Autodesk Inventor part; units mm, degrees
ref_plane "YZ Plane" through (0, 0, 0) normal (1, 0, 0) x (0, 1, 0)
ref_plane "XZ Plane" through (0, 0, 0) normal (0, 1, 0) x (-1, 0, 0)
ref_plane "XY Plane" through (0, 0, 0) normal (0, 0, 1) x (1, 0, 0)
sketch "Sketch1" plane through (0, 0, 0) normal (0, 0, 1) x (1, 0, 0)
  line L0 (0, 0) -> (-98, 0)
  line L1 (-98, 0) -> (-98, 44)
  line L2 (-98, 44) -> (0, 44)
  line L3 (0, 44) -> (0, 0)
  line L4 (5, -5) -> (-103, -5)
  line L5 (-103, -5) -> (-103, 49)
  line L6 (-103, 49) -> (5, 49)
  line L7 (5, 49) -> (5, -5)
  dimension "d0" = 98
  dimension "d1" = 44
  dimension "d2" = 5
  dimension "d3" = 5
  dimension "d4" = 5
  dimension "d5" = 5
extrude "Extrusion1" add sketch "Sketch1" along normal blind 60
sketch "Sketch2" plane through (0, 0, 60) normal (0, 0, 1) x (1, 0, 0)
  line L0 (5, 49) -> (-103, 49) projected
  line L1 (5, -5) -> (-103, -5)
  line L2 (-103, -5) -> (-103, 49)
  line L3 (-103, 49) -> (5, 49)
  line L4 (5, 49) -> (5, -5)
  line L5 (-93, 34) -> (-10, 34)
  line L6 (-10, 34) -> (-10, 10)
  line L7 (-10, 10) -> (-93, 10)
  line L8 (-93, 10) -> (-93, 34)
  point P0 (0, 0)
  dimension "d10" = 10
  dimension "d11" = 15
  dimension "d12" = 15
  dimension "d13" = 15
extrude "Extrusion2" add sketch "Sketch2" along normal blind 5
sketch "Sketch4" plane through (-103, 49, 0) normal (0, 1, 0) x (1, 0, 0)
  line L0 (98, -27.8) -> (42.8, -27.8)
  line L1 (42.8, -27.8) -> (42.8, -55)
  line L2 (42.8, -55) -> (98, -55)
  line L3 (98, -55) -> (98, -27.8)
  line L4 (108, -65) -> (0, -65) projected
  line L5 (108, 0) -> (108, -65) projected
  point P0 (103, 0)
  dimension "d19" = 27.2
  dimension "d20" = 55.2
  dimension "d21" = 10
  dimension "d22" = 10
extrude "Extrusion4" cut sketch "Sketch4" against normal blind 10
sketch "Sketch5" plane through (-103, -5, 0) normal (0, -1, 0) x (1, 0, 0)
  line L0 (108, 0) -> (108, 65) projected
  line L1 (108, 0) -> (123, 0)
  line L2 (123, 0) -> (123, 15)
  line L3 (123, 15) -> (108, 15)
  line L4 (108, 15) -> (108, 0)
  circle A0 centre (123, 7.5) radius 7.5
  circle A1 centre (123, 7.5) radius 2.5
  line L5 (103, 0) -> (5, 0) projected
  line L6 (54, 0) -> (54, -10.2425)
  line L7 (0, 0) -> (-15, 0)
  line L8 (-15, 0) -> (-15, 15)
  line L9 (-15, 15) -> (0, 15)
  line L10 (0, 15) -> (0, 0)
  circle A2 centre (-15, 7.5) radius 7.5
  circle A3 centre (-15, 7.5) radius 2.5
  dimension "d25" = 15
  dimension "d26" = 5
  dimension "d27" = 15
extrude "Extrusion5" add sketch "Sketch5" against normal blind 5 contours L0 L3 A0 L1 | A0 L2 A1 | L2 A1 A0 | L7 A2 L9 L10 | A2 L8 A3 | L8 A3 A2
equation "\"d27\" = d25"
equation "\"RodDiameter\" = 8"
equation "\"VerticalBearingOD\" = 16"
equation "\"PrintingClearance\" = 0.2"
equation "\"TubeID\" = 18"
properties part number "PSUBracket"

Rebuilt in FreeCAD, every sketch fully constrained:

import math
import FreeCAD as App
import Part
import Sketcher

V = App.Vector
Q = App.Units.Quantity


def add_polygon(sketch, points):
    """Adds a closed chain of lines whose ends are joined by coincident constraints."""
    first, n = sketch.GeometryCount, len(points)
    for a, b in zip(points, points[1:] + points[:1]):
        sketch.addGeometry(Part.LineSegment(App.Vector(*a, 0), App.Vector(*b, 0)), False)
    for i in range(n):
        sketch.addConstraint(Sketcher.Constraint("Coincident", first + i, 2, first + (i + 1) % n, 1))

doc = App.newDocument("Part")
body = doc.addObject("PartDesign::Body", "Body")

sketch1 = body.newObject("Sketcher::SketchObject", "Sketch")
sketch1.AttachmentSupport = (doc.getObject("XY_Plane"), [""])
sketch1.MapMode = "FlatFace"
add_polygon(sketch1, [(-103, -5), (5, -5), (5, 49), (-103, 49)])
add_polygon(sketch1, [(0, 44), (0, 0), (-98, 0), (-98, 44)])
sketch1.addConstraint([
    Sketcher.Constraint("Horizontal", 0),
    Sketcher.Constraint("Vertical", 1),
    Sketcher.Constraint("Horizontal", 2),
    Sketcher.Constraint("Vertical", 3),
    Sketcher.Constraint("Vertical", 4),
    Sketcher.Constraint("Horizontal", 5),
    Sketcher.Constraint("Vertical", 6),
    Sketcher.Constraint("Horizontal", 7),
    Sketcher.Constraint("Coincident", 4, 2, -1, 1),
    Sketcher.Constraint("DistanceX", 5, 2, 5, 1, Q("98 mm")),
    Sketcher.Constraint("DistanceY", 4, 2, 4, 1, Q("44 mm")),
    Sketcher.Constraint("DistanceX", -1, 1, 0, 2, Q("5 mm")),
    Sketcher.Constraint("DistanceY", 0, 2, -1, 1, Q("5 mm")),
    Sketcher.Constraint("DistanceX", 3, 2, 5, 2, Q("5 mm")),
    Sketcher.Constraint("DistanceY", 6, 2, 2, 2, Q("5 mm")),
])
pad1 = body.newObject("PartDesign::Pad", "Pad")
pad1.Profile = sketch1
pad1.Length = 60

sketch2 = body.newObject("Sketcher::SketchObject", "Sketch001")
sketch2.AttachmentSupport = (doc.getObject("XY_Plane"), [""])
sketch2.MapMode = "FlatFace"
sketch2.AttachmentOffset = App.Placement(V(0, 0, 60), App.Rotation())
add_polygon(sketch2, [(5, -5), (5, 49), (-103, 49), (-103, -5)])
add_polygon(sketch2, [(-93, 10), (-93, 34), (-10, 34), (-10, 10)])
sketch2.addConstraint([
    Sketcher.Constraint("Vertical", 0),
    Sketcher.Constraint("Horizontal", 1),
    Sketcher.Constraint("Vertical", 2),
    Sketcher.Constraint("Horizontal", 3),
    Sketcher.Constraint("Vertical", 4),
    Sketcher.Constraint("Horizontal", 5),
    Sketcher.Constraint("Vertical", 6),
    Sketcher.Constraint("Horizontal", 7),
    Sketcher.Constraint("DistanceX", 5, 2, -1, 1, Q("10 mm")),
    Sketcher.Constraint("DistanceY", -1, 1, 6, 2, Q("10 mm")),
    Sketcher.Constraint("DistanceX", 1, 2, 4, 2, Q("10 mm")),
    Sketcher.Constraint("DistanceY", 4, 2, 1, 2, Q("15 mm")),
    Sketcher.Constraint("DistanceX", 5, 2, 0, 2, Q("15 mm")),
    Sketcher.Constraint("DistanceY", 3, 2, 6, 2, Q("15 mm")),
    Sketcher.Constraint("DistanceX", 1, 2, 1, 1, Q("108 mm")),
    Sketcher.Constraint("DistanceY", 0, 1, 0, 2, Q("54 mm")),
])
pad2 = body.newObject("PartDesign::Pad", "Pad001")
pad2.Profile = sketch2
pad2.Length = 5

sketch3 = body.newObject("Sketcher::SketchObject", "Sketch002")
sketch3.AttachmentSupport = (doc.getObject("XZ_Plane"), [""])
sketch3.MapMode = "FlatFace"
sketch3.AttachmentOffset = App.Placement(V(0, 0, -49), App.Rotation())
add_polygon(sketch3, [(-5, 55), (-5, 27.8), (-60.2, 27.8), (-60.2, 55)])
sketch3.addConstraint([
    Sketcher.Constraint("Vertical", 0),
    Sketcher.Constraint("Horizontal", 1),
    Sketcher.Constraint("Vertical", 2),
    Sketcher.Constraint("Horizontal", 3),
    Sketcher.Constraint("DistanceX", 1, 2, 1, 1, Q("55.2 mm")),
    Sketcher.Constraint("DistanceY", 0, 2, 0, 1, Q("27.2 mm")),
    Sketcher.Constraint("DistanceX", 0, 2, -1, 1, Q("5 mm")),
    Sketcher.Constraint("DistanceY", -1, 1, 2, 2, Q("55 mm")),
])
pocket1 = body.newObject("PartDesign::Pocket", "Pocket")
pocket1.Profile = sketch3
pocket1.Length = 10
pocket1.Reversed = True

sketch4 = body.newObject("Sketcher::SketchObject", "Sketch003")
sketch4.AttachmentSupport = (doc.getObject("XZ_Plane"), [""])
sketch4.MapMode = "FlatFace"
sketch4.AttachmentOffset = App.Placement(V(0, 0, 5), App.Rotation())
sketch4.addGeometry([
    Part.LineSegment(V(5, 15, 0), V(5, 0, 0)),
    Part.LineSegment(V(5, 0, 0), V(20, 0, 0)),
    Part.ArcOfCircle(Part.Circle(V(20, 7.5, 0), V(0, 0, 1), 7.5), math.radians(-90), math.radians(90)),
    Part.LineSegment(V(20, 15, 0), V(5, 15, 0)),
    Part.Circle(V(20, 7.5, 0), V(0, 0, 1), 2.5),
    Part.LineSegment(V(-118, 0, 0), V(-103, 0, 0)),
    Part.LineSegment(V(-103, 0, 0), V(-103, 15, 0)),
    Part.LineSegment(V(-103, 15, 0), V(-118, 15, 0)),
    Part.ArcOfCircle(Part.Circle(V(-118, 7.5, 0), V(0, 0, 1), 7.5), math.radians(90), math.radians(270)),
    Part.Circle(V(-118, 7.5, 0), V(0, 0, 1), 2.5),
], False)
sketch4.addConstraint([
    Sketcher.Constraint("Coincident", 0, 2, 1, 1),
    Sketcher.Constraint("Tangent", 1, 2, 2, 1),
    Sketcher.Constraint("Tangent", 2, 2, 3, 1),
    Sketcher.Constraint("Coincident", 3, 2, 0, 1),
    Sketcher.Constraint("Coincident", 5, 2, 6, 1),
    Sketcher.Constraint("Coincident", 6, 2, 7, 1),
    Sketcher.Constraint("Tangent", 7, 2, 8, 1),
    Sketcher.Constraint("Tangent", 8, 2, 5, 1),
    Sketcher.Constraint("Vertical", 0),
    Sketcher.Constraint("Horizontal", 1),
    Sketcher.Constraint("Horizontal", 3),
    Sketcher.Constraint("Horizontal", 5),
    Sketcher.Constraint("Vertical", 6),
    Sketcher.Constraint("Horizontal", 7),
    Sketcher.Constraint("Coincident", 4, 3, 2, 3),
    Sketcher.Constraint("Coincident", 9, 3, 8, 3),
    Sketcher.Constraint("Equal", 2, 8),
    Sketcher.Constraint("Equal", 4, 9),
    Sketcher.Constraint("PointOnObject", 0, 2, -1),
    Sketcher.Constraint("PointOnObject", 5, 2, -1),
    Sketcher.Constraint("Equal", 3, 5),
    Sketcher.Constraint("Equal", 7, 0),
    Sketcher.Constraint("Diameter", 4, Q("5 mm")),
    Sketcher.Constraint("Radius", 2, Q("7.5 mm")),
    Sketcher.Constraint("DistanceX", -1, 1, 0, 2, Q("5 mm")),
    Sketcher.Constraint("DistanceX", 8, 3, -1, 1, Q("118 mm")),
])
pad3 = body.newObject("PartDesign::Pad", "Pad002")
pad3.Profile = sketch4
pad3.Length = 5
pad3.Reversed = True

doc.recompute()
